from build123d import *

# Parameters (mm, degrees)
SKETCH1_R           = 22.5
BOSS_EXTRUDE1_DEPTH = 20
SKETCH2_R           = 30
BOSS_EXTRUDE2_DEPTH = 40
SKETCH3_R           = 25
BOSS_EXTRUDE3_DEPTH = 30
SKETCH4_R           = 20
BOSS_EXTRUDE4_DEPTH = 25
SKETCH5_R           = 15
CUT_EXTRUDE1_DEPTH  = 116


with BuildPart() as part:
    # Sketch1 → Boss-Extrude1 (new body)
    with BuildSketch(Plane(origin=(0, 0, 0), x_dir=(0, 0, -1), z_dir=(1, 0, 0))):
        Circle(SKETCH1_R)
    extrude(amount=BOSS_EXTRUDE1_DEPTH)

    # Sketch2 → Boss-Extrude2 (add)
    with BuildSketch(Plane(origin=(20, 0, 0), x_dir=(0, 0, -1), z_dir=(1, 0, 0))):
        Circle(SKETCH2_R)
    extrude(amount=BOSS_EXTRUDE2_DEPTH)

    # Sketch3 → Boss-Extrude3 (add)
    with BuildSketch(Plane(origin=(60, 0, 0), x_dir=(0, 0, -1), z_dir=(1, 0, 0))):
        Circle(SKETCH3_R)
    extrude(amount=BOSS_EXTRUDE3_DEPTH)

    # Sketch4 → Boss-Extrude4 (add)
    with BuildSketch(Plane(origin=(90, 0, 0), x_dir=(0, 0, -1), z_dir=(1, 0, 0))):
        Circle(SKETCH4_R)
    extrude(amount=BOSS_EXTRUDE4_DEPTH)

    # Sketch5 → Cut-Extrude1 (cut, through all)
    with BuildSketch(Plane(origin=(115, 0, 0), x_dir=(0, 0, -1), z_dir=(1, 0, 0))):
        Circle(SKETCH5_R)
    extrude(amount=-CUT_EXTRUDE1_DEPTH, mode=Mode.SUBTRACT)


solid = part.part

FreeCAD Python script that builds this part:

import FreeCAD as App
import Part
import Sketcher
from FreeCAD import Vector

doc = App.newDocument("Part")
body = doc.addObject("PartDesign::Body", "Body")

# Sketch on YZ plane
sketch1 = body.newObject("Sketcher::SketchObject", "Sketch")
sketch1.AttachmentSupport = (doc.getObject("YZ_Plane"), [""])
sketch1.MapMode = "FlatFace"
sketch1.addGeometry(Part.Circle(Vector(0, 0, 0), Vector(0, 0, 1), 22.5), False)
sketch1.addConstraint([
    Sketcher.Constraint("Coincident", 0, 3, -1, 1),
    Sketcher.Constraint("Diameter", 0, 45.0),
])
pad1 = body.newObject("PartDesign::Pad", "Pad")
pad1.Profile = sketch1
pad1.Length = 20

# Sketch on YZ plane
sketch2 = body.newObject("Sketcher::SketchObject", "Sketch001")
sketch2.AttachmentSupport = (doc.getObject("YZ_Plane"), [""])
sketch2.MapMode = "FlatFace"
sketch2.AttachmentOffset = App.Placement(Vector(0, 0, 20), App.Rotation())
sketch2.addGeometry(Part.Circle(Vector(0, 0, 0), Vector(0, 0, 1), 30), False)
sketch2.addConstraint([
    Sketcher.Constraint("Coincident", 0, 3, -1, 1),
    Sketcher.Constraint("Diameter", 0, 60.0),
])
pad2 = body.newObject("PartDesign::Pad", "Pad001")
pad2.Profile = sketch2
pad2.Length = 40

# Sketch on YZ plane
sketch3 = body.newObject("Sketcher::SketchObject", "Sketch002")
sketch3.AttachmentSupport = (doc.getObject("YZ_Plane"), [""])
sketch3.MapMode = "FlatFace"
sketch3.AttachmentOffset = App.Placement(Vector(0, 0, 60), App.Rotation())
sketch3.addGeometry(Part.Circle(Vector(0, 0, 0), Vector(0, 0, 1), 25), False)
sketch3.addConstraint([
    Sketcher.Constraint("Coincident", 0, 3, -1, 1),
    Sketcher.Constraint("Diameter", 0, 50.0),
])
pad3 = body.newObject("PartDesign::Pad", "Pad002")
pad3.Profile = sketch3
pad3.Length = 30

# Sketch on YZ plane
sketch4 = body.newObject("Sketcher::SketchObject", "Sketch003")
sketch4.AttachmentSupport = (doc.getObject("YZ_Plane"), [""])
sketch4.MapMode = "FlatFace"
sketch4.AttachmentOffset = App.Placement(Vector(0, 0, 90), App.Rotation())
sketch4.addGeometry(Part.Circle(Vector(0, 0, 0), Vector(0, 0, 1), 20), False)
sketch4.addConstraint([
    Sketcher.Constraint("Coincident", 0, 3, -1, 1),
    Sketcher.Constraint("Diameter", 0, 40.0),
])
pad4 = body.newObject("PartDesign::Pad", "Pad003")
pad4.Profile = sketch4
pad4.Length = 25

# Sketch on YZ plane
sketch5 = body.newObject("Sketcher::SketchObject", "Sketch004")
sketch5.AttachmentSupport = (doc.getObject("YZ_Plane"), [""])
sketch5.MapMode = "FlatFace"
sketch5.AttachmentOffset = App.Placement(Vector(0, 0, 115), App.Rotation())
sketch5.addGeometry(Part.Circle(Vector(0, 0, 0), Vector(0, 0, 1), 15), False)
sketch5.addConstraint([
    Sketcher.Constraint("Coincident", 0, 3, -1, 1),
    Sketcher.Constraint("Diameter", 0, 30.0),
])
pocket1 = body.newObject("PartDesign::Pocket", "Pocket")
pocket1.Profile = sketch5
pocket1.Type = "ThroughAll"

doc.recompute()
